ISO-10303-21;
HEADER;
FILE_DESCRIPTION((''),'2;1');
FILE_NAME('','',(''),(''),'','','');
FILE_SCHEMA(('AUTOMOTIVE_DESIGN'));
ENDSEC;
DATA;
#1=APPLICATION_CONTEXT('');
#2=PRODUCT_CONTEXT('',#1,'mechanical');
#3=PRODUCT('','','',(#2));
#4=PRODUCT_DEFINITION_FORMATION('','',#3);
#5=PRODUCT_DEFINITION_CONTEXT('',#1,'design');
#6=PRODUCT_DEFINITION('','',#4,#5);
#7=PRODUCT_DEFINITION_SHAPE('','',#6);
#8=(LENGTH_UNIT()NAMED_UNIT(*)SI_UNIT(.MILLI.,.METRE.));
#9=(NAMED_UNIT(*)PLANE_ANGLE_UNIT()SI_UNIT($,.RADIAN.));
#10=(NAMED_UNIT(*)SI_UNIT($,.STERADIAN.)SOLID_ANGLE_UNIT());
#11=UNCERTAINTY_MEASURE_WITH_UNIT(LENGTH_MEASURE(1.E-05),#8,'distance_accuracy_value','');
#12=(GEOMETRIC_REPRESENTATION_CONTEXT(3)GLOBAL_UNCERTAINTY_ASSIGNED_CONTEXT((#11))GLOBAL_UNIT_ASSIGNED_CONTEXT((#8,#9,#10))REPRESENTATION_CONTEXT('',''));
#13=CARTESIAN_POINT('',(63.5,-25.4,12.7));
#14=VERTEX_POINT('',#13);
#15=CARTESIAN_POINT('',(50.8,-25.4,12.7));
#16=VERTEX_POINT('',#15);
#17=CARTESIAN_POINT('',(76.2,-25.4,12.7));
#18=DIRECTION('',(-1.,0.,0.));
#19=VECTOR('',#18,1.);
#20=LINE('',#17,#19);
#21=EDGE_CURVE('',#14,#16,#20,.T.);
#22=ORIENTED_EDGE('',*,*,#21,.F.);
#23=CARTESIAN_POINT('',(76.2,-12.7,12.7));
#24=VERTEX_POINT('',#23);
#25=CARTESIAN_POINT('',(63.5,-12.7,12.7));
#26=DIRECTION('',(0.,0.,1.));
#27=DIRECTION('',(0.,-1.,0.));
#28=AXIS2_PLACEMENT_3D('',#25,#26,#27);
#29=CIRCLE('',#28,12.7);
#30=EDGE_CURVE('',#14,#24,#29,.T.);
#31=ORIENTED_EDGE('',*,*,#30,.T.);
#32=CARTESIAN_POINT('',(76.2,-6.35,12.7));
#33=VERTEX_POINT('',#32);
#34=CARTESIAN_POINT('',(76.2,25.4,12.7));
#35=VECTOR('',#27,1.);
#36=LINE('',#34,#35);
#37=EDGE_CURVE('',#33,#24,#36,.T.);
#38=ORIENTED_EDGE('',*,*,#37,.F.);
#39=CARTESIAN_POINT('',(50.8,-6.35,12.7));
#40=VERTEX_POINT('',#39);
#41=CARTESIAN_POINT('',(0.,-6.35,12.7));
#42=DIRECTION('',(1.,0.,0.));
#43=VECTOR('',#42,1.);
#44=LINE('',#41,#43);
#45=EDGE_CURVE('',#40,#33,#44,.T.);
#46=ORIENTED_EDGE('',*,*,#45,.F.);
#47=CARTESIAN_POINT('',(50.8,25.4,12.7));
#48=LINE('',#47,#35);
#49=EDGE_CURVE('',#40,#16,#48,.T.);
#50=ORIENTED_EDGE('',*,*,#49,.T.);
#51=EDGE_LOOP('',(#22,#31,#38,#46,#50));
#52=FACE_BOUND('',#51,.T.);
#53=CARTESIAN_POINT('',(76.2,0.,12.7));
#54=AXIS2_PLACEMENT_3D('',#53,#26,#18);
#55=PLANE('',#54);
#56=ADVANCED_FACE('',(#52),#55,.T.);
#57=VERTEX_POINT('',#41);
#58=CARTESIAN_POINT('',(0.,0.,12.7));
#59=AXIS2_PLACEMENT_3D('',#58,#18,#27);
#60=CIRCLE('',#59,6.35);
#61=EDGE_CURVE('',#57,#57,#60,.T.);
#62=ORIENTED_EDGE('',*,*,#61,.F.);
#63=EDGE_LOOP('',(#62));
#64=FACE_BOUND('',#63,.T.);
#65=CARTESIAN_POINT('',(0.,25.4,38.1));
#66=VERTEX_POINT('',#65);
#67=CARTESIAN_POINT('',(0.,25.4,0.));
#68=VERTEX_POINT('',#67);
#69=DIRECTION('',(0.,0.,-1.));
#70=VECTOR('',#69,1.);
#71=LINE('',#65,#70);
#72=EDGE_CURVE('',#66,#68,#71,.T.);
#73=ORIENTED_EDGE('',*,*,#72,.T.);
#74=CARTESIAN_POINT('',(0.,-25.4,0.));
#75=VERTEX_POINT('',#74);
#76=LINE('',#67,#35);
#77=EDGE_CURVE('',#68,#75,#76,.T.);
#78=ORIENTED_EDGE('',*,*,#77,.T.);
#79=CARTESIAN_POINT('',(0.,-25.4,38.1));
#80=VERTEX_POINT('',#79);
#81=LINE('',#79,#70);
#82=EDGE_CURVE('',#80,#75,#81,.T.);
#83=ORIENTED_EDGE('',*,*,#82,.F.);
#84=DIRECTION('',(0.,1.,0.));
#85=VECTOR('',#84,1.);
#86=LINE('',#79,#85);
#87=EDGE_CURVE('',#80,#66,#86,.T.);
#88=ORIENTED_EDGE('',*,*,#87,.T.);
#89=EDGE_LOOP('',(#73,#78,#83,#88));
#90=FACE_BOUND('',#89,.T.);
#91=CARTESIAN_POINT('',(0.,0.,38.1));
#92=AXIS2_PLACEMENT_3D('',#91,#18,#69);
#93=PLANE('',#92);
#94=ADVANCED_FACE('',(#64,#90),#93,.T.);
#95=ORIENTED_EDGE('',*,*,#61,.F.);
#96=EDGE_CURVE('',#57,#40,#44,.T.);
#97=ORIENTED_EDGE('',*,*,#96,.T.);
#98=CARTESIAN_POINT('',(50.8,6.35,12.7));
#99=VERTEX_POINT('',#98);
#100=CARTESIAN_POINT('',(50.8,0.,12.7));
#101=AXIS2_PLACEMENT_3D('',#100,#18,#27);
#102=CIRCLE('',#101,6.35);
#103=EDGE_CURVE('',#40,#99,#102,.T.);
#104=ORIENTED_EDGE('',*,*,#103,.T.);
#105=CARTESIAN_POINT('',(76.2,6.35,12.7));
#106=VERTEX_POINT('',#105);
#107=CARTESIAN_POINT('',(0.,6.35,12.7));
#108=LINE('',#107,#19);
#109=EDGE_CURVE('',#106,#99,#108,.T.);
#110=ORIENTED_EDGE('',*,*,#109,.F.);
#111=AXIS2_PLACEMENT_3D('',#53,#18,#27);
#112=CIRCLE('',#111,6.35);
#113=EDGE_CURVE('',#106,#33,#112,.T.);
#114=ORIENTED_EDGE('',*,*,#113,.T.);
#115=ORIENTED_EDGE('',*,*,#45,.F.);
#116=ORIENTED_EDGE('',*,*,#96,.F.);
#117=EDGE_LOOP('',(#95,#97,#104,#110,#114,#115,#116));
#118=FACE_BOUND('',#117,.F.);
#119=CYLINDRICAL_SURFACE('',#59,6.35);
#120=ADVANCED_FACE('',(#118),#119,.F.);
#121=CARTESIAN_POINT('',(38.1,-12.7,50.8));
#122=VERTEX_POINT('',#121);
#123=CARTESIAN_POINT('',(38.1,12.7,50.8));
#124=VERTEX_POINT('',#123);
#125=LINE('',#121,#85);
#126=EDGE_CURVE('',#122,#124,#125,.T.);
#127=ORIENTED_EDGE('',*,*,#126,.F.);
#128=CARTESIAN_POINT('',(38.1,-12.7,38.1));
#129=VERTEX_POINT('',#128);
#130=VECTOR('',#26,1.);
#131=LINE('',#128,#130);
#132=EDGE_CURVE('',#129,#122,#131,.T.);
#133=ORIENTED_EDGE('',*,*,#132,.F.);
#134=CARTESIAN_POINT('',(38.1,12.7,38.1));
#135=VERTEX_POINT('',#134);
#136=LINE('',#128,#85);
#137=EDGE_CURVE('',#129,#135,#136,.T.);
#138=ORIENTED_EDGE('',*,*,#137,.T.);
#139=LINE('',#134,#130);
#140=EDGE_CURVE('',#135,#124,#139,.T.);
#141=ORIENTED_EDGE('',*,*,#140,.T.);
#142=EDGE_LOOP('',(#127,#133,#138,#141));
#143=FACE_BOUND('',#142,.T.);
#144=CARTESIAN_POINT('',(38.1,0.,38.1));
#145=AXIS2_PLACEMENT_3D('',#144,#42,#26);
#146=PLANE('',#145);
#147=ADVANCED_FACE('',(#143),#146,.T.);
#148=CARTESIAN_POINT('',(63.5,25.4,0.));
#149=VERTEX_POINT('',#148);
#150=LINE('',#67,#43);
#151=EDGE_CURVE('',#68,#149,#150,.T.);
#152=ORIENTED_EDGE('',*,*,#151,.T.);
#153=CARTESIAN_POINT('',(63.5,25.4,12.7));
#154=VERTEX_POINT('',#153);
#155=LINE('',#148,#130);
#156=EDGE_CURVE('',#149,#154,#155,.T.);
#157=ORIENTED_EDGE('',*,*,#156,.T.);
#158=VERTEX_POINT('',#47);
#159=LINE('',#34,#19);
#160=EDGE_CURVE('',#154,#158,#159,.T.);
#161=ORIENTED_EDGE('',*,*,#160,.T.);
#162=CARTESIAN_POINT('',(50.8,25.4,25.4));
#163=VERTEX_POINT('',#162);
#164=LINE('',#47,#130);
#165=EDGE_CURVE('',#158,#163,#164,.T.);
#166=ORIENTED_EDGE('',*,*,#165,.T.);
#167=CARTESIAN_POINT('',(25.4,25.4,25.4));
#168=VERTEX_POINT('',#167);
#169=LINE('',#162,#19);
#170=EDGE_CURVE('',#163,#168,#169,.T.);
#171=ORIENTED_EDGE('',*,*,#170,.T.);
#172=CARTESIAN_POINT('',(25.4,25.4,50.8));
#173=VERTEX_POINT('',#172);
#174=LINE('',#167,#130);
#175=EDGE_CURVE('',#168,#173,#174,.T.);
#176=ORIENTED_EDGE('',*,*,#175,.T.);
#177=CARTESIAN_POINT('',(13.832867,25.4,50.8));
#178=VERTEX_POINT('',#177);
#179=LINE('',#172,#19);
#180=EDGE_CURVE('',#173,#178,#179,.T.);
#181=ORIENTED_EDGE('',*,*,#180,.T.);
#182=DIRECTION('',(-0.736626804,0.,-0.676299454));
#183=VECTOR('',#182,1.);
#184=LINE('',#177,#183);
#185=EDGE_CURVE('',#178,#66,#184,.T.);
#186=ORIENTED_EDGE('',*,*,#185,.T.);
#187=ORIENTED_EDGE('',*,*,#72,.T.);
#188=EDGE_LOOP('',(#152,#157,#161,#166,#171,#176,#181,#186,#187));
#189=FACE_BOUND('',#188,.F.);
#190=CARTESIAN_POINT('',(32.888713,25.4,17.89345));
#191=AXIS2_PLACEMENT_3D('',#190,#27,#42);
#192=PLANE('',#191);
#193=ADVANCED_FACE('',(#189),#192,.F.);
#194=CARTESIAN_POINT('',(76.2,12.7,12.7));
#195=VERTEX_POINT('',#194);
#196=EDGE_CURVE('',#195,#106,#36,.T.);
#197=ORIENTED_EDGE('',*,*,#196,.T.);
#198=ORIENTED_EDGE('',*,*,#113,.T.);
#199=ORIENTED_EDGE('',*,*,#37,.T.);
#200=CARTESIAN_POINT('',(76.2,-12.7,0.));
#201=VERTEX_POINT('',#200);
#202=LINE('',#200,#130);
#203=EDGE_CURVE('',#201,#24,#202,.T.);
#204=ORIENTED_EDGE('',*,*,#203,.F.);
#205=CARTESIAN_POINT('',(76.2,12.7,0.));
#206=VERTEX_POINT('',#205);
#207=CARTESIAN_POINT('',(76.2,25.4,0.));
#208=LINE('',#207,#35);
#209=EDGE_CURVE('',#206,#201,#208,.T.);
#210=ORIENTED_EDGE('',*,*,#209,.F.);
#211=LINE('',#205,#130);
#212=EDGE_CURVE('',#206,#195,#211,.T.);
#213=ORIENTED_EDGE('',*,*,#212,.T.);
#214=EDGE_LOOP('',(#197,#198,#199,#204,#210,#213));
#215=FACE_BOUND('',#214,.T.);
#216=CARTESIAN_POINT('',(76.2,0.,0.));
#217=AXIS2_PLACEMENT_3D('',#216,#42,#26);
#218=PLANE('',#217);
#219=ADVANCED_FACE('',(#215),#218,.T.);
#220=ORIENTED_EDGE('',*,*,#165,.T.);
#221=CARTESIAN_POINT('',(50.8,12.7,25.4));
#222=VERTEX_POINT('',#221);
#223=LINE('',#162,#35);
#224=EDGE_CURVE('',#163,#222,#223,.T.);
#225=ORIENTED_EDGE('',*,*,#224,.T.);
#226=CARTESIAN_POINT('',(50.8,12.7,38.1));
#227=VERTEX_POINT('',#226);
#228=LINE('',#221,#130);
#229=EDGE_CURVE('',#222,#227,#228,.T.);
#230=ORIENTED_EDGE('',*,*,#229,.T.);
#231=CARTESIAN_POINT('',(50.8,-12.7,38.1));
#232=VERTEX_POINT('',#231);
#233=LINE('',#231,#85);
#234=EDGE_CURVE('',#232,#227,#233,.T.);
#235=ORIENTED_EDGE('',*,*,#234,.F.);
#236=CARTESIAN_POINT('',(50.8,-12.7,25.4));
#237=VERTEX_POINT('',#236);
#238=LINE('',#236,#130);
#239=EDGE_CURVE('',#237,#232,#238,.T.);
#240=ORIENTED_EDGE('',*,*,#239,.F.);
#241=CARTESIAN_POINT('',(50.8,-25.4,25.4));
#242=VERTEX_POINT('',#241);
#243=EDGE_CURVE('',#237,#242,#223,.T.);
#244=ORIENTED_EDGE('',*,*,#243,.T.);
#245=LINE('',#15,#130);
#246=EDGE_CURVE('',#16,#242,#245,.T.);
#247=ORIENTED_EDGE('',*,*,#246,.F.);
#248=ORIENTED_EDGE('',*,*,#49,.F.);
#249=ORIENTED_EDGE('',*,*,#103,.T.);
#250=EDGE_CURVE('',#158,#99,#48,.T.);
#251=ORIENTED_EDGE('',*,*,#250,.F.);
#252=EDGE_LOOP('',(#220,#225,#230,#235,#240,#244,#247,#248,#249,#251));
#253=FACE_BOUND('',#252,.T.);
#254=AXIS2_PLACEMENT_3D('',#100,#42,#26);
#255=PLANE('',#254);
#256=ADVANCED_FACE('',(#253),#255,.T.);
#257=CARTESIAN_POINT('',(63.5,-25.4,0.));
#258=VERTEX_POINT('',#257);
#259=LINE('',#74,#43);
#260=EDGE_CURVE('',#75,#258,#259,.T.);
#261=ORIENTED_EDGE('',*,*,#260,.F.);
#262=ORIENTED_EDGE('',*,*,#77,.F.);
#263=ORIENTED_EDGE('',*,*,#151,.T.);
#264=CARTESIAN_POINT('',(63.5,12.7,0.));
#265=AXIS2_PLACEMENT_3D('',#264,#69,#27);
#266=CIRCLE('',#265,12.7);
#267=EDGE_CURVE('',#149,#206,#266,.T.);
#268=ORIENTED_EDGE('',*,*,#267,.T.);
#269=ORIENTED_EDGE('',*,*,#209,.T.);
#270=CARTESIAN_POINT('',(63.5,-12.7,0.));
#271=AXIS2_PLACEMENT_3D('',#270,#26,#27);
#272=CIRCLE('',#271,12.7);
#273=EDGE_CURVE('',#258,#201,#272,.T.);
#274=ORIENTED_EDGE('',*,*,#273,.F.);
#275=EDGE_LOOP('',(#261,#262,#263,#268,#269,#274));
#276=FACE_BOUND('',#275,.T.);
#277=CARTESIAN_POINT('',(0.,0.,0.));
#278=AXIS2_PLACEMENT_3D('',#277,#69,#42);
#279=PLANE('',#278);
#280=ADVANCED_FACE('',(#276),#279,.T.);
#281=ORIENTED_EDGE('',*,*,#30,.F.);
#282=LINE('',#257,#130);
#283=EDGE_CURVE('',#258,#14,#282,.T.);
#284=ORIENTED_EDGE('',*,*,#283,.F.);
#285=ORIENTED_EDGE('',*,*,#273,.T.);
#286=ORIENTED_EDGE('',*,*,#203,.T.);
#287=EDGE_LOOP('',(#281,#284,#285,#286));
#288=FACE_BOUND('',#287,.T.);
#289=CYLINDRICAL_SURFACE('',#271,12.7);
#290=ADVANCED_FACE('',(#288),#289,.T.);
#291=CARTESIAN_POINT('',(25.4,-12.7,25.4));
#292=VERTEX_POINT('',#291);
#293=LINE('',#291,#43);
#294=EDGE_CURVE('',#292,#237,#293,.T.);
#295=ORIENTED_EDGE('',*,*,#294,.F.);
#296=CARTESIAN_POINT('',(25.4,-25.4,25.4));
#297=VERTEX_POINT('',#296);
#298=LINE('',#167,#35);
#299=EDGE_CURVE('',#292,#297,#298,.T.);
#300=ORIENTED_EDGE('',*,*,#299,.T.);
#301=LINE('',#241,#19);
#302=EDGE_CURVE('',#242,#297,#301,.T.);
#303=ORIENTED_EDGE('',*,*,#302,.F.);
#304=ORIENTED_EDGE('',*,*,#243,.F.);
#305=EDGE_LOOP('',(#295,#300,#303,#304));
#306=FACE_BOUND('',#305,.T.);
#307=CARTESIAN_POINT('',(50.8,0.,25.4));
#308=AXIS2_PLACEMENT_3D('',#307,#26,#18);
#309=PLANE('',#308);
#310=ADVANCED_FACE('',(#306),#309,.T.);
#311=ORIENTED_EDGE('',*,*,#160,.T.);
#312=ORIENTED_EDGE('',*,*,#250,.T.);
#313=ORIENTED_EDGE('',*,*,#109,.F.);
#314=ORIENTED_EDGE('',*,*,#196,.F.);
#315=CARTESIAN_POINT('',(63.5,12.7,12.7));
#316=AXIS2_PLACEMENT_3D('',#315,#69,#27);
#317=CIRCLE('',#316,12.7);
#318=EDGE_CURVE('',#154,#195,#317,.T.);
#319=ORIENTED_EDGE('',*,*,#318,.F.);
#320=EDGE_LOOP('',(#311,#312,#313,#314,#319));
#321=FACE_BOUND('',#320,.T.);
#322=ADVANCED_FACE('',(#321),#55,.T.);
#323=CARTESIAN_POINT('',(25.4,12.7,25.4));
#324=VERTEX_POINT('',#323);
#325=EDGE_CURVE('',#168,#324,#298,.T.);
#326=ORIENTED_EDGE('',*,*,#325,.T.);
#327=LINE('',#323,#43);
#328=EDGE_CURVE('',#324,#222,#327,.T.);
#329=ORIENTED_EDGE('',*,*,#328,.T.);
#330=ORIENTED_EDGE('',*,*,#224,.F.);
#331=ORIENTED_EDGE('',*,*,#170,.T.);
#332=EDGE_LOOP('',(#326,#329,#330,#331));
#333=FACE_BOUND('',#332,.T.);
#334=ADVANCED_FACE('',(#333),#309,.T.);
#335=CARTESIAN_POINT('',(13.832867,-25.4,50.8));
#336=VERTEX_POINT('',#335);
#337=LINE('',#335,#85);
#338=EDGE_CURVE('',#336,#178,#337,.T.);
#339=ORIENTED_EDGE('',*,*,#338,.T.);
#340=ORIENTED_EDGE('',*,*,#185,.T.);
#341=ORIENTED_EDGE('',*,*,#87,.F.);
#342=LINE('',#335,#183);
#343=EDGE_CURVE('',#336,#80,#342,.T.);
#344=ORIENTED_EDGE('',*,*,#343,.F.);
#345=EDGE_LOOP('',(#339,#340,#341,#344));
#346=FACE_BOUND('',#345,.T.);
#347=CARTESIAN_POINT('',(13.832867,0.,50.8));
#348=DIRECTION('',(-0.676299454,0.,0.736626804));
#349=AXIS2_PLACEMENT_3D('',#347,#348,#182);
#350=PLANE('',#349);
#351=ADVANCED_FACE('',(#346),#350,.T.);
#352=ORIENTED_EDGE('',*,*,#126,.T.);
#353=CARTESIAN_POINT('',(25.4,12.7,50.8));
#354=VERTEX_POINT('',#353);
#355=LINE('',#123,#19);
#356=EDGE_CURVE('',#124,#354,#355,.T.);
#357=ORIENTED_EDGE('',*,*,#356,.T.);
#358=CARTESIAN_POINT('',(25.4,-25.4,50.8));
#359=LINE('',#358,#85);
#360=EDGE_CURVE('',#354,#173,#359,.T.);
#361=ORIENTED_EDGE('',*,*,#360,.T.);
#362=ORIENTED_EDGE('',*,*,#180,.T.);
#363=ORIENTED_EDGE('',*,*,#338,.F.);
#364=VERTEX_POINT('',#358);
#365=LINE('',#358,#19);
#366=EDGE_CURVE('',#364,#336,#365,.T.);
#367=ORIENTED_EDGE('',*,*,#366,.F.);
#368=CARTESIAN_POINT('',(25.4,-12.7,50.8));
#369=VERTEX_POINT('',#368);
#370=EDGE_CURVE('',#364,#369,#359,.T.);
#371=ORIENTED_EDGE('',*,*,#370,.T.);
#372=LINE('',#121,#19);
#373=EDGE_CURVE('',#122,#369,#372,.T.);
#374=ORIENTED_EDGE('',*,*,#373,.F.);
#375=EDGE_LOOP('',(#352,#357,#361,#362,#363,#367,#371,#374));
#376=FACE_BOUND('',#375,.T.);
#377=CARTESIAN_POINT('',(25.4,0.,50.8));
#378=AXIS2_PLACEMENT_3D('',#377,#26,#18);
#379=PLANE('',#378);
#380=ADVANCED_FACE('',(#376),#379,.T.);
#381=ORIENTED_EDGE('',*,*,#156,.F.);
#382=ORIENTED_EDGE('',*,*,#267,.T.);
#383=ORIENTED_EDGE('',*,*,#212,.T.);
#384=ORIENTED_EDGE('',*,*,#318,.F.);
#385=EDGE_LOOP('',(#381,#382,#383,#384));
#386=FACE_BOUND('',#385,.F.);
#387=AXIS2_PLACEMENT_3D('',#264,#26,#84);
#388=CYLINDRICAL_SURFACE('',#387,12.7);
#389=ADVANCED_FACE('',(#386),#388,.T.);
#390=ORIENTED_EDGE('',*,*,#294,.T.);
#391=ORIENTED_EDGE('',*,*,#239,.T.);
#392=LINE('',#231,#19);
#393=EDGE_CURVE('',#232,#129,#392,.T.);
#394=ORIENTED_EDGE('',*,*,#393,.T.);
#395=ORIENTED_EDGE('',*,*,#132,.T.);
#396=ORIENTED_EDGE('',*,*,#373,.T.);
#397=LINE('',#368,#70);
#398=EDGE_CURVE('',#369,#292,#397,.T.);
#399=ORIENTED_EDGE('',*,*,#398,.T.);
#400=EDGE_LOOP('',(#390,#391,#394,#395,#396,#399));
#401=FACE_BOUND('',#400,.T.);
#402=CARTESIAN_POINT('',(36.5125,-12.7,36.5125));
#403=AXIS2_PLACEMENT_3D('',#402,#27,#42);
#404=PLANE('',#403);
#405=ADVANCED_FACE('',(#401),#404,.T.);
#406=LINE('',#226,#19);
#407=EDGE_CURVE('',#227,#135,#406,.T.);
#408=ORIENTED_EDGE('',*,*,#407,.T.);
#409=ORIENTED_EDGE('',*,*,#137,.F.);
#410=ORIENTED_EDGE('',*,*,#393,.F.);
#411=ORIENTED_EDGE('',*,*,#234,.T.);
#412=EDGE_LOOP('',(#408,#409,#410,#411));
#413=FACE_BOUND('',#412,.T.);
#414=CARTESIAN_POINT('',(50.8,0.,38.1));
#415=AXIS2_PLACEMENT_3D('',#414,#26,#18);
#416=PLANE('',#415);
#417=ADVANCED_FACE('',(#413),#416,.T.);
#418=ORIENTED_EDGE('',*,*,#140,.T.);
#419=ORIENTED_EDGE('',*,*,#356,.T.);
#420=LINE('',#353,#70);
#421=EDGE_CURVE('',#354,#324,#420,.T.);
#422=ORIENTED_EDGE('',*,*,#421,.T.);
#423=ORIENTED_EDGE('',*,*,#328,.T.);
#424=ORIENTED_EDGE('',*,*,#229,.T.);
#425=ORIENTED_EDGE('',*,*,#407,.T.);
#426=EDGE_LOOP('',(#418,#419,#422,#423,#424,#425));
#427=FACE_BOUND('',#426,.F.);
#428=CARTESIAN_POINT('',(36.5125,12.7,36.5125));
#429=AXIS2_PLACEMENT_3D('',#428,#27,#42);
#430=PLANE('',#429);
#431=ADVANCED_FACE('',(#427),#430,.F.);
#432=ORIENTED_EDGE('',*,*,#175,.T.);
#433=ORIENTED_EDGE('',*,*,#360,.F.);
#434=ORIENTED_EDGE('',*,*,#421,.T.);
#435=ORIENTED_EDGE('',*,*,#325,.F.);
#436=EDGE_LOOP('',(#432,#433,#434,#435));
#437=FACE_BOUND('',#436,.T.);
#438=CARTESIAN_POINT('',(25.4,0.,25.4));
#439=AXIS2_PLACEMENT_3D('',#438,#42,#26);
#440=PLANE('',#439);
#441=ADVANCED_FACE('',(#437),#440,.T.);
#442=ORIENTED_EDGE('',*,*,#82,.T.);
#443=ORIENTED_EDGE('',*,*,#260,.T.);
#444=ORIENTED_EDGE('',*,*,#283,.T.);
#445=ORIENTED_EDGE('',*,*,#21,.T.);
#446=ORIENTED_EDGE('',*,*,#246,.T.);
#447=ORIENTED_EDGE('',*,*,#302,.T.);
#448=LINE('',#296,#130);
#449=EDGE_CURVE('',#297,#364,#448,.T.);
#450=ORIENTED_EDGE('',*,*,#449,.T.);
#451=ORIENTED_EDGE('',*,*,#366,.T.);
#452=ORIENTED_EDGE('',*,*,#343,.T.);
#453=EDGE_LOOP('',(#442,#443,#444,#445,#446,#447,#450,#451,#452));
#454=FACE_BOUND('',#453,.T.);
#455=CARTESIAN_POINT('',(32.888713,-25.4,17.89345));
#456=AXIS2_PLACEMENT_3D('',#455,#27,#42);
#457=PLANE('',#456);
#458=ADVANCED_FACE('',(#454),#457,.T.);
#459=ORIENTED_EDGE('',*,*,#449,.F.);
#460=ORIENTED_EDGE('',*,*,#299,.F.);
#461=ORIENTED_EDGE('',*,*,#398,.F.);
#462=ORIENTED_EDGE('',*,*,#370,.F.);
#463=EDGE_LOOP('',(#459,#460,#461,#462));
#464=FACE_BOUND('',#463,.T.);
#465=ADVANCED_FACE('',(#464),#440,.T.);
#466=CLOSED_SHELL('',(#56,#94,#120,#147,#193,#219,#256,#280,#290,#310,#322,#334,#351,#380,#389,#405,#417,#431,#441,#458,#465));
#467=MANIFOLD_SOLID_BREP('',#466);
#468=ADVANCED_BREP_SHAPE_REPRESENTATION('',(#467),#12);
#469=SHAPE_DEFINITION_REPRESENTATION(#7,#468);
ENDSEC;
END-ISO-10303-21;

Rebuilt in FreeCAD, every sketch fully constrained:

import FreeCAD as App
import Part
import Sketcher

V = App.Vector
Q = App.Units.Quantity


def edges_at(feature, points):
    """Names of the edges that pass closest to the given points."""
    edges = feature.Shape.Edges
    near = lambda p: min(range(len(edges)), key=lambda i: edges[i].distToShape(Part.Vertex(*p))[0])
    return sorted({f"Edge{near(p) + 1}" for p in points})

doc = App.newDocument("Part")
body = doc.addObject("PartDesign::Body", "Body")

# Sketch on XZ plane
sketch1 = doc.addObject("Sketcher::SketchObject", "Sketch")
body.addObject(sketch1)
sketch1.AttachmentSupport = (doc.XZ_Plane, [""])
sketch1.MapMode = "FlatFace"
sketch1.addGeometry([
    Part.LineSegment(V(0, 38, 0), V(0, 0, 0)),  # 0
    Part.LineSegment(V(0, 0, 0), V(76, 0, 0)),  # 1
    Part.LineSegment(V(76, 0, 0), V(76, 13, 0)),  # 2
    Part.LineSegment(V(76, 13, 0), V(51, 13, 0)),  # 3
    Part.LineSegment(V(51, 13, 0), V(51, 25, 0)),  # 4
    Part.LineSegment(V(51, 25, 0), V(25, 25, 0)),  # 5
    Part.LineSegment(V(25, 25, 0), V(25, 51, 0)),  # 6
    Part.LineSegment(V(25, 51, 0), V(14, 51, 0)),  # 7
    Part.LineSegment(V(14, 51, 0), V(0, 38, 0)),  # 8
], False)
sketch1.addConstraint([
    Sketcher.Constraint("Coincident", 0, 2, 1, 1),
    Sketcher.Constraint("Coincident", 1, 2, 2, 1),
    Sketcher.Constraint("Coincident", 2, 2, 3, 1),
    Sketcher.Constraint("Coincident", 3, 2, 4, 1),
    Sketcher.Constraint("Coincident", 4, 2, 5, 1),
    Sketcher.Constraint("Coincident", 5, 2, 6, 1),
    Sketcher.Constraint("Coincident", 6, 2, 7, 1),
    Sketcher.Constraint("Coincident", 7, 2, 8, 1),
    Sketcher.Constraint("Coincident", 8, 2, 0, 1),
    Sketcher.Constraint("Vertical", 0),
    Sketcher.Constraint("Horizontal", 1),
    Sketcher.Constraint("Vertical", 2),
    Sketcher.Constraint("Horizontal", 3),
    Sketcher.Constraint("Vertical", 4),
    Sketcher.Constraint("Horizontal", 5),
    Sketcher.Constraint("Vertical", 6),
    Sketcher.Constraint("Horizontal", 7),
    Sketcher.Constraint("Coincident", 0, 2, -1, 1),
    Sketcher.Constraint("Equal", 3, 5),
    Sketcher.Constraint("Equal", 2, 4),
    Sketcher.Constraint("Equal", 5, 6),
    Sketcher.Constraint("DistanceX", 1, 1, 1, 2, Q("3 in")),
    Sketcher.Constraint("DistanceX", 3, 2, 3, 1, Q("1 in")),
    Sketcher.Constraint("DistanceY", 0, 2, 0, 1, Q("1.5 in")),
    Sketcher.Constraint("DistanceY", 2, 1, 2, 2, Q("0.5 in")),
    Sketcher.Constraint("DistanceX", 7, 2, 7, 1, 11.567133),
])
pad1 = doc.addObject("PartDesign::Pad", "Pad")
body.addObject(pad1)
pad1.Profile = sketch1
pad1.Length = Q("2 in")
pad1.Midplane = True

# Sketch on XZ plane
sketch2 = doc.addObject("Sketcher::SketchObject", "Sketch001")
body.addObject(sketch2)
sketch2.AttachmentSupport = (doc.XZ_Plane, [""])
sketch2.MapMode = "FlatFace"
sketch2.addGeometry([
    Part.LineSegment(V(38, 51, 0), V(25, 51, 0)),  # 0
    Part.LineSegment(V(25, 51, 0), V(25, 25, 0)),  # 1
    Part.LineSegment(V(25, 25, 0), V(51, 25, 0)),  # 2
    Part.LineSegment(V(51, 25, 0), V(51, 38, 0)),  # 3
    Part.LineSegment(V(51, 38, 0), V(38, 38, 0)),  # 4
    Part.LineSegment(V(38, 38, 0), V(38, 51, 0)),  # 5
], False)
sketch2.addConstraint([
    Sketcher.Constraint("Coincident", 0, 2, 1, 1),
    Sketcher.Constraint("Coincident", 1, 2, 2, 1),
    Sketcher.Constraint("Coincident", 2, 2, 3, 1),
    Sketcher.Constraint("Coincident", 3, 2, 4, 1),
    Sketcher.Constraint("Coincident", 4, 2, 5, 1),
    Sketcher.Constraint("Coincident", 5, 2, 0, 1),
    Sketcher.Constraint("Horizontal", 0),
    Sketcher.Constraint("Vertical", 1),
    Sketcher.Constraint("Horizontal", 2),
    Sketcher.Constraint("Vertical", 3),
    Sketcher.Constraint("Horizontal", 4),
    Sketcher.Constraint("Vertical", 5),
    Sketcher.Constraint("Equal", 0, 4),
    Sketcher.Constraint("Equal", 2, 1),
    Sketcher.Constraint("Equal", 4, 3),
    Sketcher.Constraint("DistanceX", 2, 1, 2, 2, Q("1 in")),
    Sketcher.Constraint("DistanceX", -1, 1, 0, 2, Q("1 in")),
    Sketcher.Constraint("DistanceY", -1, 1, 0, 2, Q("2 in")),
])
pad2 = doc.addObject("PartDesign::Pad", "Pad001")
body.addObject(pad2)
pad2.Profile = sketch2
pad2.Length = Q("1 in")
pad2.Midplane = True

# Sketch on YZ plane
sketch3 = doc.addObject("Sketcher::SketchObject", "Sketch002")
body.addObject(sketch3)
sketch3.AttachmentSupport = (doc.YZ_Plane, [""])
sketch3.MapMode = "FlatFace"
sketch3.addGeometry(Part.Circle(V(0, 13, 0), V(0, 0, 1), 6), False)
sketch3.addConstraint([
    Sketcher.Constraint("PointOnObject", 0, 3, -2),
    Sketcher.Constraint("Diameter", 0, Q("0.5 in")),
    Sketcher.Constraint("DistanceY", -1, 1, 0, 3, Q("0.5 in")),
])
pocket1 = doc.addObject("PartDesign::Pocket", "Pocket")
body.addObject(pocket1)
pocket1.Profile = sketch3
pocket1.Type = "ThroughAll"
pocket1.Reversed = True
doc.recompute()

fillet = doc.addObject("PartDesign::Fillet", "Fillet")
body.addObject(fillet)
fillet.Base = (pocket1, edges_at(pocket1, [(76.2, 25.4, 6.35), (76.2, -25.4, 6.35)]))
fillet.Radius = Q("0.5 in")

doc.recompute()
